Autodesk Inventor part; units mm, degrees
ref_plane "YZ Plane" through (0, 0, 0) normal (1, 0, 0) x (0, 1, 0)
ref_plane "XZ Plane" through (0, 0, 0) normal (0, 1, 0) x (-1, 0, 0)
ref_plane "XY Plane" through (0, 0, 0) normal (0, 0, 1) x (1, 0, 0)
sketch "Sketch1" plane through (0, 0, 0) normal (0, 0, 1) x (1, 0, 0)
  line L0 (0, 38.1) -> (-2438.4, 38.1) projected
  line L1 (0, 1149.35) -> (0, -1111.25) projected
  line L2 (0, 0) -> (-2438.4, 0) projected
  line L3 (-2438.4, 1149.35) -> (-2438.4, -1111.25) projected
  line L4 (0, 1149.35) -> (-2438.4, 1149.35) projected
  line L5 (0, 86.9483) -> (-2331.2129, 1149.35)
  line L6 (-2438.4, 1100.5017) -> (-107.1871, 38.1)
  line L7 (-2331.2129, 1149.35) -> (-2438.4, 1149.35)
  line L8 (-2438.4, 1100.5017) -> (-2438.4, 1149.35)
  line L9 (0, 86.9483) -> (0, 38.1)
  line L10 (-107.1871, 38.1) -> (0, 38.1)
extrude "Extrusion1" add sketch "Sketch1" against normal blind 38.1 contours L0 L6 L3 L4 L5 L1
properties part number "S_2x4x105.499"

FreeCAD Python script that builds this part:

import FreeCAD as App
import Part
import Sketcher
from FreeCAD import Vector
Q = App.Units.Quantity

doc = App.newDocument("Part")
body = doc.addObject("PartDesign::Body", "Body")

sketch1 = body.newObject("Sketcher::SketchObject", "Sketch")
sketch1.AttachmentSupport = (doc.getObject("XY_Plane"), [""])
sketch1.MapMode = "FlatFace"
sketch1.addGeometry(Part.LineSegment(Vector(-107.1871, 38.1, 0), Vector(0, 38.1, 0)), False)
sketch1.addGeometry(Part.LineSegment(Vector(0, 38.1, 0), Vector(0, 86.9483, 0)), False)
sketch1.addGeometry(Part.LineSegment(Vector(0, 86.9483, 0), Vector(-2331.2129, 1149.35, 0)), False)
sketch1.addGeometry(Part.LineSegment(Vector(-2331.2129, 1149.35, 0), Vector(-2438.4, 1149.35, 0)), False)
sketch1.addGeometry(Part.LineSegment(Vector(-2438.4, 1149.35, 0), Vector(-2438.4, 1100.5017, 0)), False)
sketch1.addGeometry(Part.LineSegment(Vector(-2438.4, 1100.5017, 0), Vector(-107.1871, 38.1, 0)), False)
sketch1.addConstraint(Sketcher.Constraint("Coincident", 0, 2, 1, 1))
sketch1.addConstraint(Sketcher.Constraint("Coincident", 1, 2, 2, 1))
sketch1.addConstraint(Sketcher.Constraint("Coincident", 2, 2, 3, 1))
sketch1.addConstraint(Sketcher.Constraint("Coincident", 3, 2, 4, 1))
sketch1.addConstraint(Sketcher.Constraint("Coincident", 4, 2, 5, 1))
sketch1.addConstraint(Sketcher.Constraint("Coincident", 5, 2, 0, 1))
sketch1.addConstraint(Sketcher.Constraint("Horizontal", 0))
sketch1.addConstraint(Sketcher.Constraint("Vertical", 1))
sketch1.addConstraint(Sketcher.Constraint("Horizontal", 3))
sketch1.addConstraint(Sketcher.Constraint("Vertical", 4))
sketch1.addConstraint(Sketcher.Constraint("PointOnObject", 0, 2, -2))
sketch1.addConstraint(Sketcher.Constraint("Parallel", 2, 5))
sketch1.addConstraint(Sketcher.Constraint("Equal", 0, 3))
sketch1.addConstraint(Sketcher.Constraint("DistanceX", 3, 2, -1, 1, Q("96 in")))
sketch1.addConstraint(Sketcher.Constraint("DistanceY", -1, 1, 0, 2, Q("1.5 in")))
sketch1.addConstraint(Sketcher.Constraint("Angle", 2, Q("155.4999 deg")))
sketch1.addConstraint(Sketcher.Constraint("DistanceY", -1, 1, 2, 2, Q("45.25 in")))
sketch1.addConstraint(Sketcher.Constraint("DistanceX", 0, 1, 0, 2, Q("107.187 mm")))
pad1 = body.newObject("PartDesign::Pad", "Pad")
pad1.Profile = sketch1
pad1.Length = Q("1.5 in")
pad1.Reversed = True

doc.recompute()
